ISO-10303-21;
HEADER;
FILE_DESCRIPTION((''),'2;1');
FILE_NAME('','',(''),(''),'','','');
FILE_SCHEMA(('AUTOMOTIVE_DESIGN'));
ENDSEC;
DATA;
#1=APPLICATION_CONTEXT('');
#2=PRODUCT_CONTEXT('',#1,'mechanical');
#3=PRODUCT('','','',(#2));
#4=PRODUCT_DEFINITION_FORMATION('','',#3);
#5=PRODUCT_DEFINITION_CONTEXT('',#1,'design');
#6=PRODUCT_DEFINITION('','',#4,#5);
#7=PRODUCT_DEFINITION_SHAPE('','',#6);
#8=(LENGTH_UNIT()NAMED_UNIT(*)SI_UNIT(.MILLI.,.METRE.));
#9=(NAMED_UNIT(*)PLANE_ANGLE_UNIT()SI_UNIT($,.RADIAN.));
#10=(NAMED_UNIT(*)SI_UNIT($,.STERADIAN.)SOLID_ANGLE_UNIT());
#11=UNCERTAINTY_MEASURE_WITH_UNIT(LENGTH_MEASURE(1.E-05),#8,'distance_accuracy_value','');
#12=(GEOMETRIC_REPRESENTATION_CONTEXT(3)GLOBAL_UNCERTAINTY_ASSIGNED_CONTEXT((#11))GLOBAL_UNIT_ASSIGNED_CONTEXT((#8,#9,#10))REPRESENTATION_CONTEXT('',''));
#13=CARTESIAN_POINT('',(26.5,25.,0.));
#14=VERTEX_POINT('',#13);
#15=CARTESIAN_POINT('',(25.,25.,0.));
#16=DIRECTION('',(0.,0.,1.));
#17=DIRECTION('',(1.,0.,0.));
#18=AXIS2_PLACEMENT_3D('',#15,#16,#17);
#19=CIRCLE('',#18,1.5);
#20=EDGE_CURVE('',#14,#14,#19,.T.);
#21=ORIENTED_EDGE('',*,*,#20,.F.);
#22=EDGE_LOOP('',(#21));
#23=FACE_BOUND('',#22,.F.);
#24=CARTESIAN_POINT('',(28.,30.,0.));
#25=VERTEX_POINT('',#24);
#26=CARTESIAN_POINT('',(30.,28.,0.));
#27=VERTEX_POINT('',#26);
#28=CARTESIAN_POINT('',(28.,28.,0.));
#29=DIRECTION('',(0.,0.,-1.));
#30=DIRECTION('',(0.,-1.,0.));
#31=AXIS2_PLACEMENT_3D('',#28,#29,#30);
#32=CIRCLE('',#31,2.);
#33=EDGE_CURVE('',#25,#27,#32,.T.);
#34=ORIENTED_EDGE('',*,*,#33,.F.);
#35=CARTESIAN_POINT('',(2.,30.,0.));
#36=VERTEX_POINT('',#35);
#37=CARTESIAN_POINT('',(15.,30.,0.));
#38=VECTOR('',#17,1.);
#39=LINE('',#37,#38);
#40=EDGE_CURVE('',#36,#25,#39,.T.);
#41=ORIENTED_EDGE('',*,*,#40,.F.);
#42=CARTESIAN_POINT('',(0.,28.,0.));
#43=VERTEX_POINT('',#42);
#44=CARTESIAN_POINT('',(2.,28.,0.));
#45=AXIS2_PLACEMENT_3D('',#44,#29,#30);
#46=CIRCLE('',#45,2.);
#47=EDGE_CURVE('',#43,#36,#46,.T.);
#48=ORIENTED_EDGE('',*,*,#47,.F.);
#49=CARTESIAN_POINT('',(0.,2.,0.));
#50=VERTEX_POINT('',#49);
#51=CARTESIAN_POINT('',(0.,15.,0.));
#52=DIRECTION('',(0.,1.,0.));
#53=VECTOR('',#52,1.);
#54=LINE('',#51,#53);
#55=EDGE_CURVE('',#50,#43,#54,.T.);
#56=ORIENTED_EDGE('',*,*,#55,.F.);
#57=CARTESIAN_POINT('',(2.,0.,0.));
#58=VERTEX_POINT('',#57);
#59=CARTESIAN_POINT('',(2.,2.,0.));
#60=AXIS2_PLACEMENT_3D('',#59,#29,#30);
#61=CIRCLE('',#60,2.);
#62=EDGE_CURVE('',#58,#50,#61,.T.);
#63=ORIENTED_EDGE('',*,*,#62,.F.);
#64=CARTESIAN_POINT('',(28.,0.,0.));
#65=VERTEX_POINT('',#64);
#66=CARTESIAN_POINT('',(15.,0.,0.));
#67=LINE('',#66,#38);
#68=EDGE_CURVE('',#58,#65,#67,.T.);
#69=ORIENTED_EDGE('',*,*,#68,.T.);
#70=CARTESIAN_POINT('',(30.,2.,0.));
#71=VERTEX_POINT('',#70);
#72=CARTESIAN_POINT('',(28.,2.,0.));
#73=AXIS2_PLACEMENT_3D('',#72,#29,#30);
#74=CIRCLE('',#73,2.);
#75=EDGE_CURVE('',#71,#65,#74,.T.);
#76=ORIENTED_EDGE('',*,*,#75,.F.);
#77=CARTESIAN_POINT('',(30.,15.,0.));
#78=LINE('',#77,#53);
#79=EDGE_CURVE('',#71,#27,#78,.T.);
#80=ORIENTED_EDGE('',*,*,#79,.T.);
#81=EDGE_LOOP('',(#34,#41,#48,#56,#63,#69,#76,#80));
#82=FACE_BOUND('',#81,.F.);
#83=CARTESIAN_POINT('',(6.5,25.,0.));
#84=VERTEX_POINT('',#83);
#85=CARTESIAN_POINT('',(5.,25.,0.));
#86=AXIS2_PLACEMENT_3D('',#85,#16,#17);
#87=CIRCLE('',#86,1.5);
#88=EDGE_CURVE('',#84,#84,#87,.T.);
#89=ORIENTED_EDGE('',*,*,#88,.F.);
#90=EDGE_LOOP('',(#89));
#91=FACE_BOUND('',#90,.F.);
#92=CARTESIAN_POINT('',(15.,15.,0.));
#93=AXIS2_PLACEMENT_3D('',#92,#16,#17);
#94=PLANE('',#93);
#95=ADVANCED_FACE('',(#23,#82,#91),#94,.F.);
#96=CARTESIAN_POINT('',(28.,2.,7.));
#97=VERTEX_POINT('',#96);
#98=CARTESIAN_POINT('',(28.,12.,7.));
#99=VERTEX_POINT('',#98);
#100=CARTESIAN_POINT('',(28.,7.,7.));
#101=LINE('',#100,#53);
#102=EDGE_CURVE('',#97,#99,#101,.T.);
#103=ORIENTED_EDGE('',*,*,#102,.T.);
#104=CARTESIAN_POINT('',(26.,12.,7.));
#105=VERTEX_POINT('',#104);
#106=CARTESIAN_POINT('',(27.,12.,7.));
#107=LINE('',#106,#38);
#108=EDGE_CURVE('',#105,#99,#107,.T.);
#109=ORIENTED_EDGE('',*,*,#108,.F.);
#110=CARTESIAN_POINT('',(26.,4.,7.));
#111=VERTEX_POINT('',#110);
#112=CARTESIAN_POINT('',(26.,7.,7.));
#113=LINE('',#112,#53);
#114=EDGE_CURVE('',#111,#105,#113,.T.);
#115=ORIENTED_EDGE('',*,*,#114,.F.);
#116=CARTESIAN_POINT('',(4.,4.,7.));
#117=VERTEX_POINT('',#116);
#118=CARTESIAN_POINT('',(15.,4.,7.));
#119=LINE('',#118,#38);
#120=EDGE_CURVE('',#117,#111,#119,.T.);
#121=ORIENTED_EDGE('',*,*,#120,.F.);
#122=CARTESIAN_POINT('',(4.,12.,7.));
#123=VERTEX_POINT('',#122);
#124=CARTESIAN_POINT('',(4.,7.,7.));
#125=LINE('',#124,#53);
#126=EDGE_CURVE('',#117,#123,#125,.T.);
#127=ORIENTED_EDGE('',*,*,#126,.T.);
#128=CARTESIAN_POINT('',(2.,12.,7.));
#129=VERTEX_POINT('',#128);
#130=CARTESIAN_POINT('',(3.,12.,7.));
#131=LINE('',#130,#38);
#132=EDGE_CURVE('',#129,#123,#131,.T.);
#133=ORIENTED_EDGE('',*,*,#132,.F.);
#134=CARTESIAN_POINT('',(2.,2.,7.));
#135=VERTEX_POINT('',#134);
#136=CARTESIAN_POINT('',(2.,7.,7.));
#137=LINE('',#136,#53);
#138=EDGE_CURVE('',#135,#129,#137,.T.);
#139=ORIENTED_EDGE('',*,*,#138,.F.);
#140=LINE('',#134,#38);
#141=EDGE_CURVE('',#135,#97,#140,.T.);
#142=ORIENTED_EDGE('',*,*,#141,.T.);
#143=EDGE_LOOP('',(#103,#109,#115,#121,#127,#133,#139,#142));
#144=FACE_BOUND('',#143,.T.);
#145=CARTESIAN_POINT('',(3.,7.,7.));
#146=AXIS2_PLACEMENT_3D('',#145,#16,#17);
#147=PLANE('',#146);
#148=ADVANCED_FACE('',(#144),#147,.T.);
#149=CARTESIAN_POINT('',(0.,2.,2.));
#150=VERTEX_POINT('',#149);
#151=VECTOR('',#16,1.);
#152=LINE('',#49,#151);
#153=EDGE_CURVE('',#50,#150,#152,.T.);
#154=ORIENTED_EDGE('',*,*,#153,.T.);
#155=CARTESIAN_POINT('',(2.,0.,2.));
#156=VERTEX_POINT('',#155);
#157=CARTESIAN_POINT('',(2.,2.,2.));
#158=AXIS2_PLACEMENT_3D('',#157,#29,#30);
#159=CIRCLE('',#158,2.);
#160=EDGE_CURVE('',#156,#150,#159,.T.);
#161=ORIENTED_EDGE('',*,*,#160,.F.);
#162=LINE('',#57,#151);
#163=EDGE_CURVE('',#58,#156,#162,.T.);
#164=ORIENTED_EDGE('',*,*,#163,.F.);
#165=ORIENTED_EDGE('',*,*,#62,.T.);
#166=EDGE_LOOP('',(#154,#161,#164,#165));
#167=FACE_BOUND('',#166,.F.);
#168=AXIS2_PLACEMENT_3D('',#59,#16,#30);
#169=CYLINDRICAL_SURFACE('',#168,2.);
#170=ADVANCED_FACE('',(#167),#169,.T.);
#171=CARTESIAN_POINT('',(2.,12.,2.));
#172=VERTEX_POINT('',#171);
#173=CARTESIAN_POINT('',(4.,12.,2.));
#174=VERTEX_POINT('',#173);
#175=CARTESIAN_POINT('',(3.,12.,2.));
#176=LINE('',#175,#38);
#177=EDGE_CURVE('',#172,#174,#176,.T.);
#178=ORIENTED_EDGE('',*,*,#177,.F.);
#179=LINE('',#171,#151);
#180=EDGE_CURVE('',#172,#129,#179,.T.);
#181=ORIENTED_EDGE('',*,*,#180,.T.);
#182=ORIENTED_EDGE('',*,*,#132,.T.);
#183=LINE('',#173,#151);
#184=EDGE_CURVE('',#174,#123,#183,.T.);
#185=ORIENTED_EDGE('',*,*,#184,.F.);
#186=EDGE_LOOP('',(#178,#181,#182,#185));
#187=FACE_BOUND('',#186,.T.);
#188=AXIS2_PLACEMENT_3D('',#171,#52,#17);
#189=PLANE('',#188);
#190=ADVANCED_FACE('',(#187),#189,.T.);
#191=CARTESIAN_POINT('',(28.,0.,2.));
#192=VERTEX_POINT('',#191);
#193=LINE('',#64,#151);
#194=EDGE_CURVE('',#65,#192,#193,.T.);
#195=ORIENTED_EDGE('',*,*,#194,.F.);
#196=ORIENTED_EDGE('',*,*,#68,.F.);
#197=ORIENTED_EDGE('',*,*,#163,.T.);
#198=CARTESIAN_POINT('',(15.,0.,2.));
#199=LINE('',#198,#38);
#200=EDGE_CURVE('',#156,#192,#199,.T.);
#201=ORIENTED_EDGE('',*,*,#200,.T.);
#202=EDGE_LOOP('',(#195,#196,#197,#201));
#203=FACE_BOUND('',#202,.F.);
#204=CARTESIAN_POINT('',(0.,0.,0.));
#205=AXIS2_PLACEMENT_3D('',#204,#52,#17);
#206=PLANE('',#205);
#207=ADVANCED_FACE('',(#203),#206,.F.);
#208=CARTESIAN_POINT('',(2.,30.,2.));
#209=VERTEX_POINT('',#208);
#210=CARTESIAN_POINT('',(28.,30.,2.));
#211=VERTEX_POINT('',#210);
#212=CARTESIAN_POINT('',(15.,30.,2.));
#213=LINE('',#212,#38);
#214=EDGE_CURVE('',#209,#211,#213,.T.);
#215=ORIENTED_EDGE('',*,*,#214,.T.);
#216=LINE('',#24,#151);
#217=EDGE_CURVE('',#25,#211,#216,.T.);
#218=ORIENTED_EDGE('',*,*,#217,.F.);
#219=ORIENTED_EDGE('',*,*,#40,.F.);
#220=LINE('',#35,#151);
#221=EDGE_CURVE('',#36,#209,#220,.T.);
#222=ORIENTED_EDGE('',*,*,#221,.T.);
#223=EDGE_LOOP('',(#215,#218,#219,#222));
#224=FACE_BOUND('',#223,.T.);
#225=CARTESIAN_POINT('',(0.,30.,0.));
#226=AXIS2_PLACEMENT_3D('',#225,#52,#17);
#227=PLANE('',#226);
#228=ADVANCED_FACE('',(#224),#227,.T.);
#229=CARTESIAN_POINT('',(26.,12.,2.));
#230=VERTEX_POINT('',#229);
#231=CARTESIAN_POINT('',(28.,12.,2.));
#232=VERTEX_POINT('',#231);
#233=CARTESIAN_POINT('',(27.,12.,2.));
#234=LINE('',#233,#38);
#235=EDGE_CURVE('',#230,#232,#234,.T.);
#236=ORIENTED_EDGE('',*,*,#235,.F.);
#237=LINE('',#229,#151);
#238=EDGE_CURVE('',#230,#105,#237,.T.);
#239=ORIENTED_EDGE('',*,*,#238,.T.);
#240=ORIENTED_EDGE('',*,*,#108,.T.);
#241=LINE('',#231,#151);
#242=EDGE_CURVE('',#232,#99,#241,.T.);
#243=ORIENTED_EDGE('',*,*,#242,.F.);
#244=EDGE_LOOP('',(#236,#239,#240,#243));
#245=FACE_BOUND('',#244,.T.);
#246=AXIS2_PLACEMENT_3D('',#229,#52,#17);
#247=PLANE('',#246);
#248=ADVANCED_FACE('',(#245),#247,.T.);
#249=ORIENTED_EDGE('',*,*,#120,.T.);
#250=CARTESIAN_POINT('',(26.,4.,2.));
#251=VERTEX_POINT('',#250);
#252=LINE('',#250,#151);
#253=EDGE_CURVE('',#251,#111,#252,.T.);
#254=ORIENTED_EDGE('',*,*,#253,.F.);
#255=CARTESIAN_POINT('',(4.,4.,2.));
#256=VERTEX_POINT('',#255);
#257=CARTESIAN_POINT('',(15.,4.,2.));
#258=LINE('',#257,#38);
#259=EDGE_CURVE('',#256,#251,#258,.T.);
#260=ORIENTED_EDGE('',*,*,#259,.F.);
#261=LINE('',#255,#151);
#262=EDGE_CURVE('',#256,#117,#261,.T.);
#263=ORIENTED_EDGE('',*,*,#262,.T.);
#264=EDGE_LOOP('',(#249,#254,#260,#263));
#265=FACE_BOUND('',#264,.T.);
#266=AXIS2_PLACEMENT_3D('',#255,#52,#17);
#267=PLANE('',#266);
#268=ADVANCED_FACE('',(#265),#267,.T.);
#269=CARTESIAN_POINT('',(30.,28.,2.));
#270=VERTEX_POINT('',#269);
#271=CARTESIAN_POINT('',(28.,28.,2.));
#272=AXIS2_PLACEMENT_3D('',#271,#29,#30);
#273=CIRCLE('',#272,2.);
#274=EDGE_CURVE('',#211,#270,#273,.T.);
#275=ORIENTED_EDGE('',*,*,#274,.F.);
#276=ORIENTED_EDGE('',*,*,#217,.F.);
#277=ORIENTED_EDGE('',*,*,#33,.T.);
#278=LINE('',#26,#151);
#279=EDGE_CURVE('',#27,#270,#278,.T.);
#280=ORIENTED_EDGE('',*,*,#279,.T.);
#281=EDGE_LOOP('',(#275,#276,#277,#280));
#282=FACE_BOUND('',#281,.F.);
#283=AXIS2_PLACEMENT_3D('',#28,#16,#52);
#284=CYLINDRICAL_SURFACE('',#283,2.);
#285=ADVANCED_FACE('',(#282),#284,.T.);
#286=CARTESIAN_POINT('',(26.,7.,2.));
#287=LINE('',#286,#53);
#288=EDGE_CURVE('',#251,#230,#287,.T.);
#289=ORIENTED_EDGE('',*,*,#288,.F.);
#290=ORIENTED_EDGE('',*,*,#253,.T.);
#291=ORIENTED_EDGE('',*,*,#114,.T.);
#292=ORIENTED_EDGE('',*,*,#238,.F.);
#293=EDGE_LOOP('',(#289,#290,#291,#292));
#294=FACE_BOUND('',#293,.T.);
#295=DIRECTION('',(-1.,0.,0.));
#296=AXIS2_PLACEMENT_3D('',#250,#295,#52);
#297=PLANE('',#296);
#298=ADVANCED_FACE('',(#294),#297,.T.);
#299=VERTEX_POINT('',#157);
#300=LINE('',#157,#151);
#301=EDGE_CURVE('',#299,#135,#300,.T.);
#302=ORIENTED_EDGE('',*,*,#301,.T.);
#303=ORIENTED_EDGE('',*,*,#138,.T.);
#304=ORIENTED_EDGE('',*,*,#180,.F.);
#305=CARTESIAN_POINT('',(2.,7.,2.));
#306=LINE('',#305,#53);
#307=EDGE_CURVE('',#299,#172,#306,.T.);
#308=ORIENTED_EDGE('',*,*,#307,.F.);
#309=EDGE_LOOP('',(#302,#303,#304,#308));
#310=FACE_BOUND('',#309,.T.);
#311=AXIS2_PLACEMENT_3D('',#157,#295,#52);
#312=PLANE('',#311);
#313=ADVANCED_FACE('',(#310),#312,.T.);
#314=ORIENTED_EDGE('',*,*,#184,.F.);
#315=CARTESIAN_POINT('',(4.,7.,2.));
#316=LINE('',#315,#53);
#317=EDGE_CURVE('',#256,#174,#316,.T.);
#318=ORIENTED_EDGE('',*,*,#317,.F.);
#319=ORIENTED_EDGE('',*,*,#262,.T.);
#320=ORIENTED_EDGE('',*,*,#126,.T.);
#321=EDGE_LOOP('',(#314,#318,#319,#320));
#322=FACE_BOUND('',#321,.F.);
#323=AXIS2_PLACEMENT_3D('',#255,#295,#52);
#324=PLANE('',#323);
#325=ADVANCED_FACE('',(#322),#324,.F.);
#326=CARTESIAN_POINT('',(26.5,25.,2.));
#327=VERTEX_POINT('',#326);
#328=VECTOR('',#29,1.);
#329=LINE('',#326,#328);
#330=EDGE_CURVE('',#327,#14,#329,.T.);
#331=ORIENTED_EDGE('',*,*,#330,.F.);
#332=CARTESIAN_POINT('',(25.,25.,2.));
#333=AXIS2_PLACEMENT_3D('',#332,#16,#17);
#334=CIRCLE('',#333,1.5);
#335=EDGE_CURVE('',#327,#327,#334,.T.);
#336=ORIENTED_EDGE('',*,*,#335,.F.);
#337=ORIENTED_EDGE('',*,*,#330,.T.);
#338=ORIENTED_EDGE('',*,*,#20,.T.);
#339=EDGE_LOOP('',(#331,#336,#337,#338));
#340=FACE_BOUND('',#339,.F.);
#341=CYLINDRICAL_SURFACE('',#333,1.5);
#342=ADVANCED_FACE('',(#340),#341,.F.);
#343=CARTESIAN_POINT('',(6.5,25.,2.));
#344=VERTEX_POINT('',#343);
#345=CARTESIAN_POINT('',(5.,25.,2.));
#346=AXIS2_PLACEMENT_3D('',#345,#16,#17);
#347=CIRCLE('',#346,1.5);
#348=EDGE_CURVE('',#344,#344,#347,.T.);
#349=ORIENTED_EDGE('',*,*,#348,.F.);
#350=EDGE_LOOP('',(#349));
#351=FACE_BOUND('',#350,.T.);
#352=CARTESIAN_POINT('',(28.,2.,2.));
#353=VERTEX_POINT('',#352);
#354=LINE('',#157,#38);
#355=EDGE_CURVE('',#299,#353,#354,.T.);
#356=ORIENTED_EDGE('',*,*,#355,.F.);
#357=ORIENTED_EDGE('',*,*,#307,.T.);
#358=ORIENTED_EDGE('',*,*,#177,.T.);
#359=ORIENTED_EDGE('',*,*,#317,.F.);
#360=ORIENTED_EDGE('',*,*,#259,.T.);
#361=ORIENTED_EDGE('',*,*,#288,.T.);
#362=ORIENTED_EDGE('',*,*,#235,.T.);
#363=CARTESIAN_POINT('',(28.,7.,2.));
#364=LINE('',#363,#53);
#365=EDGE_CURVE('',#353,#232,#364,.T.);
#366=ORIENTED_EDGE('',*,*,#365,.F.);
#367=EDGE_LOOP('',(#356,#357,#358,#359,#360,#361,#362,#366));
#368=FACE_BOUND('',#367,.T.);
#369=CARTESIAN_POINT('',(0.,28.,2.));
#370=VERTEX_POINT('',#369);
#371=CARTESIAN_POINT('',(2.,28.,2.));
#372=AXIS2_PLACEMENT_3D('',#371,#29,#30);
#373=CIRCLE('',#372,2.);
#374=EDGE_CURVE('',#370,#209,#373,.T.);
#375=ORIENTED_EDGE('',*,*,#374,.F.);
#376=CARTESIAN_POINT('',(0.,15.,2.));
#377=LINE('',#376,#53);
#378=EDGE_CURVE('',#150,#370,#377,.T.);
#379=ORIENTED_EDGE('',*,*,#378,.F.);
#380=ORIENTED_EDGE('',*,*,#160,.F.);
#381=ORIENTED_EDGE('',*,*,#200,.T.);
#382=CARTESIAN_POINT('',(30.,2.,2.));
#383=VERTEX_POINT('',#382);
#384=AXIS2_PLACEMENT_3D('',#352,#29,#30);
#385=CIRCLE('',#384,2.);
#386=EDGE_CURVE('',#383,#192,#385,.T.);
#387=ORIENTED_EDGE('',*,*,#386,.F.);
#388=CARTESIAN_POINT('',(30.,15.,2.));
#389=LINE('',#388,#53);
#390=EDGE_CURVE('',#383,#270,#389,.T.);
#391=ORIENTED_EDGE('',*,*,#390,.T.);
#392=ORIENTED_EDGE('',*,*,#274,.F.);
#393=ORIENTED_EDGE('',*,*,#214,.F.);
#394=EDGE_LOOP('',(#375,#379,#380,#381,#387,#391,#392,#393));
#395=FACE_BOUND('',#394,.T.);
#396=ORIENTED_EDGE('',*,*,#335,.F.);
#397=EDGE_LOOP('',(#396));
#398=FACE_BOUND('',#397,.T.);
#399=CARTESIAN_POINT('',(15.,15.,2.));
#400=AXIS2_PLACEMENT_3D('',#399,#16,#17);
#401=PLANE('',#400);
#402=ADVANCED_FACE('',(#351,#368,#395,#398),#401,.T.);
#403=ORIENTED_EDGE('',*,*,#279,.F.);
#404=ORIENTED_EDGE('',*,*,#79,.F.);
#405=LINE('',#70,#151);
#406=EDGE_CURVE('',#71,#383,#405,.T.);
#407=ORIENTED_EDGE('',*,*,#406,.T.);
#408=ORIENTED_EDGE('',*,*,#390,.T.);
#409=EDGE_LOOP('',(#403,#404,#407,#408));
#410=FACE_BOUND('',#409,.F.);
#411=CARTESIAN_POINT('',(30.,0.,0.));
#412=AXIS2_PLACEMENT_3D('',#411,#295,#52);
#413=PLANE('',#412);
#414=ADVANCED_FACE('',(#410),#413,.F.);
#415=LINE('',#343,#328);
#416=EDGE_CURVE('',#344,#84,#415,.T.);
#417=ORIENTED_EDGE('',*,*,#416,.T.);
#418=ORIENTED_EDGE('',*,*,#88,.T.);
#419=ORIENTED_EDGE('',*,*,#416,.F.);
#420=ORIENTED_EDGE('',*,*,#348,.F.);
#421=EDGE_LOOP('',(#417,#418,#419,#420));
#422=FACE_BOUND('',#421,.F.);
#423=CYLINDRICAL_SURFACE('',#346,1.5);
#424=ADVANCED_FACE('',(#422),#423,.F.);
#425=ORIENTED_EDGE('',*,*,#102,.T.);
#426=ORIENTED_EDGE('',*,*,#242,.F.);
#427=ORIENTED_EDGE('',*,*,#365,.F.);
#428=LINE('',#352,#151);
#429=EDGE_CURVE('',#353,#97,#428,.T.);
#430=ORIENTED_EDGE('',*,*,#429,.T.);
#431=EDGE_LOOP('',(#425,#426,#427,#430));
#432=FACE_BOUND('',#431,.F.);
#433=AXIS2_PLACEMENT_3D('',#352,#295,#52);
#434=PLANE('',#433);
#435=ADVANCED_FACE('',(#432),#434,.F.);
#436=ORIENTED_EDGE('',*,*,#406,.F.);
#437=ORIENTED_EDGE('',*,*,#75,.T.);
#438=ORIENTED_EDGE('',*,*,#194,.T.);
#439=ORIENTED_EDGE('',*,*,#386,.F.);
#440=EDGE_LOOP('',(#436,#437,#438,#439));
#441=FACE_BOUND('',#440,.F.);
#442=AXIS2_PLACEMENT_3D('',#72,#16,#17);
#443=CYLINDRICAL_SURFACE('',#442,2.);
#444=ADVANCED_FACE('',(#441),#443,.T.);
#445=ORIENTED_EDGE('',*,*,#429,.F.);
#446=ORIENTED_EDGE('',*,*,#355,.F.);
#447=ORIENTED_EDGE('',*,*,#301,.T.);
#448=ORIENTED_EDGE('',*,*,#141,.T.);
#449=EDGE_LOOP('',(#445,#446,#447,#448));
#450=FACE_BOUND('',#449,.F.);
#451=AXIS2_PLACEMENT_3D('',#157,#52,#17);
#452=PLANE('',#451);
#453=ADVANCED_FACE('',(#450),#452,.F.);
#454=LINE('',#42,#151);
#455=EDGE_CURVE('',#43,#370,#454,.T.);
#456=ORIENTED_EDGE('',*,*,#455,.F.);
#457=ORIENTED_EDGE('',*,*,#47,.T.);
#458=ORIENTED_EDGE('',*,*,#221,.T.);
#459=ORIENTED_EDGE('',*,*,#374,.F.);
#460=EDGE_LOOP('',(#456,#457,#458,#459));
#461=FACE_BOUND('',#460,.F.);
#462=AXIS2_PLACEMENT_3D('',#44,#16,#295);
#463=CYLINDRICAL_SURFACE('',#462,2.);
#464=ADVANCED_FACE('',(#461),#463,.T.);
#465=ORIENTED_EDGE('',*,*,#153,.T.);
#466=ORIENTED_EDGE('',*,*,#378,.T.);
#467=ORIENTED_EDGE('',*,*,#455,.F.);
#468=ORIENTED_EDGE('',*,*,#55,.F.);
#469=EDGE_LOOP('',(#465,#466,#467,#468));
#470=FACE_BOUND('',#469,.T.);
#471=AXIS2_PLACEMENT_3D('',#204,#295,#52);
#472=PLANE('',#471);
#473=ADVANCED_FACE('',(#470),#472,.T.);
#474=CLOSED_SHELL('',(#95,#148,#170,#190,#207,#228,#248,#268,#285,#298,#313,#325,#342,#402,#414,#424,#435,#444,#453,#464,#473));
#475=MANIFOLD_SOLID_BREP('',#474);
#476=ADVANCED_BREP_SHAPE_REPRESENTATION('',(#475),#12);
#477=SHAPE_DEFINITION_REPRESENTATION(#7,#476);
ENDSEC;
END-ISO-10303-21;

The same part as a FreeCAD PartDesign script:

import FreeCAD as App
import Part
import Sketcher


def edges_at(feature, points):
    """Names of the edges that pass closest to the given points."""
    edges = feature.Shape.Edges
    near = lambda p: min(range(len(edges)), key=lambda i: edges[i].distToShape(Part.Vertex(*p))[0])
    return sorted({f"Edge{near(p) + 1}" for p in points})


def add_polygon(sketch, points):
    """Adds a closed chain of lines whose ends are joined by coincident constraints."""
    first, n = sketch.GeometryCount, len(points)
    for a, b in zip(points, points[1:] + points[:1]):
        sketch.addGeometry(Part.LineSegment(App.Vector(*a, 0), App.Vector(*b, 0)), False)
    for i in range(n):
        sketch.addConstraint(Sketcher.Constraint("Coincident", first + i, 2, first + (i + 1) % n, 1))

doc = App.newDocument("Part")
body = doc.addObject("PartDesign::Body", "Body")

# Sketch on XY plane
sketch1 = body.newObject("Sketcher::SketchObject", "Sketch")
sketch1.AttachmentSupport = (doc.getObject("XY_Plane"), [""])
sketch1.MapMode = "FlatFace"
add_polygon(sketch1, [(0, 30), (0, 0), (30, 0), (30, 30)])  # lines 0-3
sketch1.addConstraint(Sketcher.Constraint("Vertical", 0))
sketch1.addConstraint(Sketcher.Constraint("Horizontal", 1))
sketch1.addConstraint(Sketcher.Constraint("Vertical", 2))
sketch1.addConstraint(Sketcher.Constraint("Horizontal", 3))
sketch1.addConstraint(Sketcher.Constraint("Coincident", 0, 2, -1, 1))
sketch1.addConstraint(Sketcher.Constraint("Equal", 3, 0))
sketch1.addConstraint(Sketcher.Constraint("DistanceX", 1, 1, 1, 2, 30.0))
pad1 = body.newObject("PartDesign::Pad", "Pad")
pad1.Profile = sketch1
pad1.Length = 2

# Sketch on XY plane
sketch2 = body.newObject("Sketcher::SketchObject", "Sketch001")
sketch2.AttachmentSupport = (doc.getObject("XY_Plane"), [""])
sketch2.MapMode = "FlatFace"
sketch2.AttachmentOffset = App.Placement(App.Vector(0, 0, 2), App.Rotation())
sketch2.addGeometry(Part.Circle(App.Vector(5, 25, 0), App.Vector(0, 0, 1), 1.5), False)
sketch2.addGeometry(Part.Circle(App.Vector(25, 25, 0), App.Vector(0, 0, 1), 1.5), False)
sketch2.addConstraint(Sketcher.Constraint("Equal", 0, 1))
sketch2.addConstraint(Sketcher.Constraint("Horizontal", 0, 3, 1, 3))
sketch2.addConstraint(Sketcher.Constraint("Diameter", 0, 3.0))
sketch2.addConstraint(Sketcher.Constraint("DistanceX", -1, 1, 0, 3, 5.0))
sketch2.addConstraint(Sketcher.Constraint("DistanceY", -1, 1, 0, 3, 25.0))
sketch2.addConstraint(Sketcher.Constraint("DistanceX", -1, 1, 1, 3, 25.0))
pocket1 = body.newObject("PartDesign::Pocket", "Pocket")
pocket1.Profile = sketch2
pocket1.Length = 5

# Sketch on XY plane
sketch3 = body.newObject("Sketcher::SketchObject", "Sketch002")
sketch3.AttachmentSupport = (doc.getObject("XY_Plane"), [""])
sketch3.MapMode = "FlatFace"
sketch3.AttachmentOffset = App.Placement(App.Vector(0, 0, 2), App.Rotation())
add_polygon(sketch3, [(2, 12), (2, 2), (28, 2), (28, 12), (26, 12), (26, 4), (4, 4), (4, 12)])  # lines 0-7
sketch3.addConstraint(Sketcher.Constraint("Vertical", 0))
sketch3.addConstraint(Sketcher.Constraint("Horizontal", 1))
sketch3.addConstraint(Sketcher.Constraint("Vertical", 2))
sketch3.addConstraint(Sketcher.Constraint("Horizontal", 3))
sketch3.addConstraint(Sketcher.Constraint("Vertical", 4))
sketch3.addConstraint(Sketcher.Constraint("Horizontal", 5))
sketch3.addConstraint(Sketcher.Constraint("Vertical", 6))
sketch3.addConstraint(Sketcher.Constraint("Horizontal", 7))
sketch3.addConstraint(Sketcher.Constraint("Horizontal", 3, 2, 6, 2))
sketch3.addConstraint(Sketcher.Constraint("Equal", 3, 7))
sketch3.addConstraint(Sketcher.Constraint("DistanceX", 1, 1, 1, 2, 26.0))
sketch3.addConstraint(Sketcher.Constraint("DistanceX", 3, 2, 3, 1, 2.0))
sketch3.addConstraint(Sketcher.Constraint("DistanceY", 0, 2, 0, 1, 10.0))
sketch3.addConstraint(Sketcher.Constraint("DistanceY", 4, 2, 4, 1, 8.0))
sketch3.addConstraint(Sketcher.Constraint("DistanceX", -1, 1, 0, 2, 2.0))
sketch3.addConstraint(Sketcher.Constraint("DistanceY", -1, 1, 0, 2, 2.0))
pad2 = body.newObject("PartDesign::Pad", "Pad001")
pad2.Profile = sketch3
pad2.Length = 5
doc.recompute()

fillet = body.newObject("PartDesign::Fillet", "Fillet")
fillet.Base = (pad2, edges_at(pad2, [(30, 30, 1)]))
fillet.Radius = 2
doc.recompute()

fillet2 = body.newObject("PartDesign::Fillet", "Fillet001")
fillet2.Base = (fillet, edges_at(fillet, [(30, 0, 1)]))
fillet2.Radius = 2
doc.recompute()

fillet3 = body.newObject("PartDesign::Fillet", "Fillet002")
fillet3.Base = (fillet2, edges_at(fillet2, [(0, 0, 1)]))
fillet3.Radius = 2
doc.recompute()

fillet4 = body.newObject("PartDesign::Fillet", "Fillet003")
fillet4.Base = (fillet3, edges_at(fillet3, [(0, 30, 1)]))
fillet4.Radius = 2

doc.recompute()
